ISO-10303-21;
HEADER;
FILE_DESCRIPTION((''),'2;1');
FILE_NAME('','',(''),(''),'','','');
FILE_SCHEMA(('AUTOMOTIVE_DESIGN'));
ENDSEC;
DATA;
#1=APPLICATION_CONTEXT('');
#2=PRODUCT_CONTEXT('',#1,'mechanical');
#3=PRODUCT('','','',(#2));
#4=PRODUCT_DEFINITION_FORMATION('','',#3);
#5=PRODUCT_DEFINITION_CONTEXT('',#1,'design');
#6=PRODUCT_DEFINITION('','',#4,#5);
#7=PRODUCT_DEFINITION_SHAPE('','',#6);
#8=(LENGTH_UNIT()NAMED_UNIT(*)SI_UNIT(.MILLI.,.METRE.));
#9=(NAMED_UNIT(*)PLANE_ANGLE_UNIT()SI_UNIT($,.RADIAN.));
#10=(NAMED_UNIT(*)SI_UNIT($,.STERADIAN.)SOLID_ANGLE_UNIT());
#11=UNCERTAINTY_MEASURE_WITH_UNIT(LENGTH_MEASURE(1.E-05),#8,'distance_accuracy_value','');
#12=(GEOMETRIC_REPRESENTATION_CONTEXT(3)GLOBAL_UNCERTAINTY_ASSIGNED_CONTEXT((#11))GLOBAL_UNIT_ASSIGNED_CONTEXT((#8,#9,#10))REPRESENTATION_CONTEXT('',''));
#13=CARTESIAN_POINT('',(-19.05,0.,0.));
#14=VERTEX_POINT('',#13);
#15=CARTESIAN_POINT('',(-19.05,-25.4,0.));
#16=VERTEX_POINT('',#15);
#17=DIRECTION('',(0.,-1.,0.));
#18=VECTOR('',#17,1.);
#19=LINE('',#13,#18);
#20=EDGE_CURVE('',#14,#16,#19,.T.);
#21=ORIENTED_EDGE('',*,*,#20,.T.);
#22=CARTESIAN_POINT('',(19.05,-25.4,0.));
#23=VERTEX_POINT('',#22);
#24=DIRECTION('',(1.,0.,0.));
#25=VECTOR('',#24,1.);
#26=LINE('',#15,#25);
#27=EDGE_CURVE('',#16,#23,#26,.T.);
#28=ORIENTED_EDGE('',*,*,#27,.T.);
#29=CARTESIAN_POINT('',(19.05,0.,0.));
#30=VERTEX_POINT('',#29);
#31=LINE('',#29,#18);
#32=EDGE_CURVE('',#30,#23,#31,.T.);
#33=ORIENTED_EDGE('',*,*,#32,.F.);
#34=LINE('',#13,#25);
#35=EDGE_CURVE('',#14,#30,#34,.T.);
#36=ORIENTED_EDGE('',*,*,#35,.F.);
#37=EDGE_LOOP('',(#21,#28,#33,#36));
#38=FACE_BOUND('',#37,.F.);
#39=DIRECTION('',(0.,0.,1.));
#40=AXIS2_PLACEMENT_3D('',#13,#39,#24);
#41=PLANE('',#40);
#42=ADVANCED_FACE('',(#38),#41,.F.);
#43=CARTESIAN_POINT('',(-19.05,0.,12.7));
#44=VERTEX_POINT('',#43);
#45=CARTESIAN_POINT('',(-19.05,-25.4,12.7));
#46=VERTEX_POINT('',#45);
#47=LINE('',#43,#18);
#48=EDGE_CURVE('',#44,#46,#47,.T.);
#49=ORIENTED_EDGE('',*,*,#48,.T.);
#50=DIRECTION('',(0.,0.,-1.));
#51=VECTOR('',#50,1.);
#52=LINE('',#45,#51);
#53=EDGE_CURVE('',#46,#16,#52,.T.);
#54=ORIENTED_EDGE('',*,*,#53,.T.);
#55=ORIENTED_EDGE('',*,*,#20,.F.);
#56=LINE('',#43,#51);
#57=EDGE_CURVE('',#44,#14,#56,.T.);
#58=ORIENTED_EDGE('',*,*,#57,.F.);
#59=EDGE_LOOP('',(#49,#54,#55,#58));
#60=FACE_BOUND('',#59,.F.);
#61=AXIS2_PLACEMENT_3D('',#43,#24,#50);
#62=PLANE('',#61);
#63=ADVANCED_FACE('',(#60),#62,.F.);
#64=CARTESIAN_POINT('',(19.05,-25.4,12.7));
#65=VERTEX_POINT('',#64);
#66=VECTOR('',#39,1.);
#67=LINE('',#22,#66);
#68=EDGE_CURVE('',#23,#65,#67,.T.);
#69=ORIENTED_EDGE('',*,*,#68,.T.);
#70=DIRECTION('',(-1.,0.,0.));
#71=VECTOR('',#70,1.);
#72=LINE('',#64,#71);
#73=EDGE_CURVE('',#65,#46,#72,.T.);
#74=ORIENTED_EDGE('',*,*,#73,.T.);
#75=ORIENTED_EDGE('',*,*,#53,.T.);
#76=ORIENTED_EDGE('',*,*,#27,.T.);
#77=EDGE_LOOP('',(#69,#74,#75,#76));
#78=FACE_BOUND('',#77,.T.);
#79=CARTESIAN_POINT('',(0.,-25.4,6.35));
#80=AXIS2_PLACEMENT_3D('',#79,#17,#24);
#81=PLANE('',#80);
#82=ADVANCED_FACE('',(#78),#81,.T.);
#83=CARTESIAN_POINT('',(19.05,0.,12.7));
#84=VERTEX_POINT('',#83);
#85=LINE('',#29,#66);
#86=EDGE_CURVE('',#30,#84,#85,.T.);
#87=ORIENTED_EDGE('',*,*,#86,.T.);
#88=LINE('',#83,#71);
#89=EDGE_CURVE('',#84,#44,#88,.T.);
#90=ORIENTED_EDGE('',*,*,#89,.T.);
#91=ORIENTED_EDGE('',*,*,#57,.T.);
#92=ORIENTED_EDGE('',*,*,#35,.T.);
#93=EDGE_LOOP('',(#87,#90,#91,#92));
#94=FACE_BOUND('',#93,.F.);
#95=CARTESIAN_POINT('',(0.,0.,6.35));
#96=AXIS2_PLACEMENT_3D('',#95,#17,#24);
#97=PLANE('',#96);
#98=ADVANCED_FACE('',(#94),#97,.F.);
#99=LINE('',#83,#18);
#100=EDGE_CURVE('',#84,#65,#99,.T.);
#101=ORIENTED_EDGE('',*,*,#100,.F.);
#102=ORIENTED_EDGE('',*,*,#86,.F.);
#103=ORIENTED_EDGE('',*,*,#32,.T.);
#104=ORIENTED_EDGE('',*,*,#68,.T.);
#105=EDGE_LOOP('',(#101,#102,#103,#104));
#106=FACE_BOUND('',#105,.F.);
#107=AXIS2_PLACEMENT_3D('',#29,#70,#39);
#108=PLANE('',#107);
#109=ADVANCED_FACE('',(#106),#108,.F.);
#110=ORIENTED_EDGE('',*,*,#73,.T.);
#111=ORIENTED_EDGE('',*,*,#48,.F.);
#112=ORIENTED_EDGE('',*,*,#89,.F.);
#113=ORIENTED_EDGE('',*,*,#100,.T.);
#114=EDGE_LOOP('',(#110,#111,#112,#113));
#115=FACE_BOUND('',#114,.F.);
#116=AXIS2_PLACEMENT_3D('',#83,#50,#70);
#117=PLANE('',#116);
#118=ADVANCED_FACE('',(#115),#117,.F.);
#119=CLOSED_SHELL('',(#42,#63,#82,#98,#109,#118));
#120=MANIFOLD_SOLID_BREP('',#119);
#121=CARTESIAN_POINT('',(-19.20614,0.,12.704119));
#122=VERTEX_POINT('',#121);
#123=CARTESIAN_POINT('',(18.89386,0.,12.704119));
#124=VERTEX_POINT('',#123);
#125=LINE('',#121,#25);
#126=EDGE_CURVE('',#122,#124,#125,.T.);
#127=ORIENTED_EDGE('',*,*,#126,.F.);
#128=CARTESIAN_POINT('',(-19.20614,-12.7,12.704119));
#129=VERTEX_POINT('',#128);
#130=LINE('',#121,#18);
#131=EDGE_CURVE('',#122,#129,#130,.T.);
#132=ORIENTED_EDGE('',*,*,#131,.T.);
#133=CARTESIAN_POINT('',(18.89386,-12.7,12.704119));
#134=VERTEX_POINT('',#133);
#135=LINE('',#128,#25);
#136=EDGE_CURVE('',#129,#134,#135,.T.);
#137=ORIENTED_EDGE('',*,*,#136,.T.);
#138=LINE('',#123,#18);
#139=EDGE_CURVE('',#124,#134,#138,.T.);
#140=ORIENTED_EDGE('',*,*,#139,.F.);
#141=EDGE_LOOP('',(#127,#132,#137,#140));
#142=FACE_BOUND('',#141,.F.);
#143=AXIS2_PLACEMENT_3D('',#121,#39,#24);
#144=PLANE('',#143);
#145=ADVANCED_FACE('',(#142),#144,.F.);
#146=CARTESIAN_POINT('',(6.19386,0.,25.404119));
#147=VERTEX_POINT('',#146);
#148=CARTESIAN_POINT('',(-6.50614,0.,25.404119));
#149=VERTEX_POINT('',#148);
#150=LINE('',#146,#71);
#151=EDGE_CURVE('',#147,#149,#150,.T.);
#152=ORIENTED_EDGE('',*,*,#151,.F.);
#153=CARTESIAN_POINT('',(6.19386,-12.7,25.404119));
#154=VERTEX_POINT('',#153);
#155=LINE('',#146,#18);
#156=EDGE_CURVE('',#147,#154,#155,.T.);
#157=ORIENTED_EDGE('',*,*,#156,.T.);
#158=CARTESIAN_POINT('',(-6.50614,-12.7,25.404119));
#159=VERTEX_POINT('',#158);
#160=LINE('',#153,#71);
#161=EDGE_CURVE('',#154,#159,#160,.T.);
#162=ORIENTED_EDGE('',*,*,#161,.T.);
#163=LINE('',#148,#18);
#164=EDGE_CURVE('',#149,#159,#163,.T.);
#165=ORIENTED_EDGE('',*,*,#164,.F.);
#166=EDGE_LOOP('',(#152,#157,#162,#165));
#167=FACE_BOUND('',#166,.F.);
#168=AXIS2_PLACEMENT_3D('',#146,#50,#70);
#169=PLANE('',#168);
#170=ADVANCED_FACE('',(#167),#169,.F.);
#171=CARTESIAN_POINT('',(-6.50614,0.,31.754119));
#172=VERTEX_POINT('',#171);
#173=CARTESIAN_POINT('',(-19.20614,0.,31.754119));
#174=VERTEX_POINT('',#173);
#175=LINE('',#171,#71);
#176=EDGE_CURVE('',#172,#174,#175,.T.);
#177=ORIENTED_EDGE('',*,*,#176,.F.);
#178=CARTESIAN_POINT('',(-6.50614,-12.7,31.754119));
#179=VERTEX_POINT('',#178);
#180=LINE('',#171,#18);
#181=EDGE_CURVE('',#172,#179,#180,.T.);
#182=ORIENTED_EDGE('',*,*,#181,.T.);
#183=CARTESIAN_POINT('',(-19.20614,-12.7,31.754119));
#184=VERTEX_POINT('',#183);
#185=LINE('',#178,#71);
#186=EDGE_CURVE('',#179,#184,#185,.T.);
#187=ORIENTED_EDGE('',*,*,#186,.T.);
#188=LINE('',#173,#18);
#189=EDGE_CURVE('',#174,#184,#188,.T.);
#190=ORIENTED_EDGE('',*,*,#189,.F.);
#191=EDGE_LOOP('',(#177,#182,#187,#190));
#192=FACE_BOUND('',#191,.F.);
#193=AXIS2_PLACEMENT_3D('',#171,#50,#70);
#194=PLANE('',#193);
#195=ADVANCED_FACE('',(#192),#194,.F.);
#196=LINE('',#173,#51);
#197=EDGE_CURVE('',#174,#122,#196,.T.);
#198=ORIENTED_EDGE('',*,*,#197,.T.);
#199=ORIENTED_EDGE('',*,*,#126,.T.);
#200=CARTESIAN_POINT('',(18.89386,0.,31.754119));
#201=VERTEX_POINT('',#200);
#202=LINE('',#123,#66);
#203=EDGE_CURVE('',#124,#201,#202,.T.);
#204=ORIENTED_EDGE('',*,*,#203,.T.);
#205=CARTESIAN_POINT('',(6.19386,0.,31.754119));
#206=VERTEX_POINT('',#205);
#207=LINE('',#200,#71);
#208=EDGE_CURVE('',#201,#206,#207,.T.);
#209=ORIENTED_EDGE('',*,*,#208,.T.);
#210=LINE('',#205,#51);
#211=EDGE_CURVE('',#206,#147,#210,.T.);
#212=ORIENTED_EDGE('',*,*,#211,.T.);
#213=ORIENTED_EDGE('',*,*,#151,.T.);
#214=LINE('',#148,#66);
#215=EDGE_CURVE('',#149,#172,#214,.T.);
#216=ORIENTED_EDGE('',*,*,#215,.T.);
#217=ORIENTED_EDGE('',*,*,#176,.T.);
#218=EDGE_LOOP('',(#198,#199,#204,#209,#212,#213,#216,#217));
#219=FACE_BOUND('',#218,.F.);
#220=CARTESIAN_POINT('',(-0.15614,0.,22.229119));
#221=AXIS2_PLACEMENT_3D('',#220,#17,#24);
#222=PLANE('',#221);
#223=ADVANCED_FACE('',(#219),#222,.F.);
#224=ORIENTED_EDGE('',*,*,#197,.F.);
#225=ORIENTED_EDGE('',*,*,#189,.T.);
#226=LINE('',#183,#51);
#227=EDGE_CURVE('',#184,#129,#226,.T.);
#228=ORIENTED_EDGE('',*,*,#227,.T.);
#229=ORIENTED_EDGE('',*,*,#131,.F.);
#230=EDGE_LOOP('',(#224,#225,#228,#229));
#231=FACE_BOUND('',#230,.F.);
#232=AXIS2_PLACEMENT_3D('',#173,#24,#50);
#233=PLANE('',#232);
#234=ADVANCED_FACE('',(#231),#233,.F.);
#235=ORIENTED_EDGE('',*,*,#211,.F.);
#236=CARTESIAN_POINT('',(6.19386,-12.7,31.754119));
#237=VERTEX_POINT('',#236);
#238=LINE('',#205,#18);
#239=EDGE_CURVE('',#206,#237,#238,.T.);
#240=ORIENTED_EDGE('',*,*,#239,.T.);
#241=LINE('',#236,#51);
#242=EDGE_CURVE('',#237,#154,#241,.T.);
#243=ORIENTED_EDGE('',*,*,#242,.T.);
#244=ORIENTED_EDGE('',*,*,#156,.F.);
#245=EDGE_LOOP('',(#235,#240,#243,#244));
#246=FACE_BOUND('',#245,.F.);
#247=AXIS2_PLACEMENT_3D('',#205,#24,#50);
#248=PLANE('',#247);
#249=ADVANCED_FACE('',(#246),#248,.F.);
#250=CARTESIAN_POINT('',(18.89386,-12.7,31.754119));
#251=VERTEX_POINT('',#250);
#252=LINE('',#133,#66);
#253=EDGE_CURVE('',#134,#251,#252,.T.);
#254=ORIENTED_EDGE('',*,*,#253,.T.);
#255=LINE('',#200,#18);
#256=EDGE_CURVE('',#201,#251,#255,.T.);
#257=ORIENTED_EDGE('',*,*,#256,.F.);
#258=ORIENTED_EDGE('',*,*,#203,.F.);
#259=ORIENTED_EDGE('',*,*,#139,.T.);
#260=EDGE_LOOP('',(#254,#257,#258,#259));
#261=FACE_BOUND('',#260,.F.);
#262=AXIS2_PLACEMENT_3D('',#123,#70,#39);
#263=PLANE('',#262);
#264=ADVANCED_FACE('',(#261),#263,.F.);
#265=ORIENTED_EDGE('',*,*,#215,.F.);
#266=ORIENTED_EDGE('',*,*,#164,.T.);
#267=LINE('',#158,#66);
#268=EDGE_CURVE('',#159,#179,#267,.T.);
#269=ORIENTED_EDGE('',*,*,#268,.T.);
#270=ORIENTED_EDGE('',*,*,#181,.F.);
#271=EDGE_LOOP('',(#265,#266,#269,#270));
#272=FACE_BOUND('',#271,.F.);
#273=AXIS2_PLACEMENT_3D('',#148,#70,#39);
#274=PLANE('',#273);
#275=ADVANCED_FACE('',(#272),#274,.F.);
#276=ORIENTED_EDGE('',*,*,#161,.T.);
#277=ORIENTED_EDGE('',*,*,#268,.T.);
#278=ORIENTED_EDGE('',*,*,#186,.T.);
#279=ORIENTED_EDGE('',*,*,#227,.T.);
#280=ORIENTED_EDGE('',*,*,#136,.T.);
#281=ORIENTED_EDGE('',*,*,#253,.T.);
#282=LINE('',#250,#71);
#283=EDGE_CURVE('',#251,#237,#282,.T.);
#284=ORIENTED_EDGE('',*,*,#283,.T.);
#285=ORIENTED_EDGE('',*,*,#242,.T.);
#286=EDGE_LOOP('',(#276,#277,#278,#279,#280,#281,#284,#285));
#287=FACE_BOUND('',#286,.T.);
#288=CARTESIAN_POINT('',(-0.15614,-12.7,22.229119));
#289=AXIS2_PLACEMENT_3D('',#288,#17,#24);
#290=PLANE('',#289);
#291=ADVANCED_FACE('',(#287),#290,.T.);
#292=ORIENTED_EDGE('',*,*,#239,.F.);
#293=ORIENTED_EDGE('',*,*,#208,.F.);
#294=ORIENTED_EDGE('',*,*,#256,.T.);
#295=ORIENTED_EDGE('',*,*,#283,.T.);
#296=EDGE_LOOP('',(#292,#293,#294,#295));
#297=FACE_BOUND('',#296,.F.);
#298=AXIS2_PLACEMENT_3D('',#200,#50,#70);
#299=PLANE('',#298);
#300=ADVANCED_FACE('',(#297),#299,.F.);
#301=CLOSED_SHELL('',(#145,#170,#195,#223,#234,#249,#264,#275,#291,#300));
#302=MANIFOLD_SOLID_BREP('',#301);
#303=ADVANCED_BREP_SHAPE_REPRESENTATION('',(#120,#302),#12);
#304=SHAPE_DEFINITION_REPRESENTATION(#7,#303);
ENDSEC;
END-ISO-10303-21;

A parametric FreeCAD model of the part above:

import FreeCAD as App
import Part
import Sketcher

V = App.Vector
Q = App.Units.Quantity

doc = App.newDocument("Part")
body = doc.addObject("PartDesign::Body", "Body")

sketch1 = body.newObject("Sketcher::SketchObject", "Sketch")
sketch1.AttachmentSupport = (doc.getObject("XZ_Plane"), [""])
sketch1.MapMode = "FlatFace"
sketch1.addGeometry([
    Part.LineSegment(V(-19, 0, 0), V(19, 0, 0)),
    Part.LineSegment(V(19, 0, 0), V(19, 13, 0)),
    Part.LineSegment(V(19, 13, 0), V(-19, 13, 0)),
    Part.LineSegment(V(-19, 13, 0), V(-19, 0, 0)),
], False)
sketch1.addConstraint([
    Sketcher.Constraint("Coincident", 0, 2, 1, 1),
    Sketcher.Constraint("Coincident", 1, 2, 2, 1),
    Sketcher.Constraint("Coincident", 2, 2, 3, 1),
    Sketcher.Constraint("Coincident", 3, 2, 0, 1),
    Sketcher.Constraint("Horizontal", 0),
    Sketcher.Constraint("Vertical", 1),
    Sketcher.Constraint("Horizontal", 2),
    Sketcher.Constraint("Vertical", 3),
    Sketcher.Constraint("Symmetric", 0, 2, 3, 2, -1, 1),
    Sketcher.Constraint("DistanceX", 0, 1, 0, 2, Q("1.5 in")),
    Sketcher.Constraint("DistanceY", 1, 1, 1, 2, Q("0.5 in")),
])
pad1 = body.newObject("PartDesign::Pad", "Pad")
pad1.Profile = sketch1
pad1.Length = Q("1 in")
body2 = doc.addObject("PartDesign::Body", "Body001")

sketch2 = body2.newObject("Sketcher::SketchObject", "Sketch001")
sketch2.AttachmentSupport = (doc.getObject("XZ_Plane001"), [""])
sketch2.MapMode = "FlatFace"
sketch2.addGeometry([
    Part.LineSegment(V(-19, 32, 0), V(-19, 13, 0)),
    Part.LineSegment(V(-19, 13, 0), V(19, 13, 0)),
    Part.LineSegment(V(19, 13, 0), V(19, 32, 0)),
    Part.LineSegment(V(19, 32, 0), V(6, 32, 0)),
    Part.LineSegment(V(6, 32, 0), V(6, 25, 0)),
    Part.LineSegment(V(6, 25, 0), V(-7, 25, 0)),
    Part.LineSegment(V(-7, 25, 0), V(-7, 32, 0)),
    Part.LineSegment(V(-7, 32, 0), V(-19, 32, 0)),
], False)
sketch2.addConstraint([
    Sketcher.Constraint("Coincident", 0, 2, 1, 1),
    Sketcher.Constraint("Coincident", 1, 2, 2, 1),
    Sketcher.Constraint("Coincident", 2, 2, 3, 1),
    Sketcher.Constraint("Coincident", 3, 2, 4, 1),
    Sketcher.Constraint("Coincident", 4, 2, 5, 1),
    Sketcher.Constraint("Coincident", 5, 2, 6, 1),
    Sketcher.Constraint("Coincident", 6, 2, 7, 1),
    Sketcher.Constraint("Coincident", 7, 2, 0, 1),
    Sketcher.Constraint("Vertical", 0),
    Sketcher.Constraint("Horizontal", 1),
    Sketcher.Constraint("Vertical", 2),
    Sketcher.Constraint("Horizontal", 3),
    Sketcher.Constraint("Vertical", 4),
    Sketcher.Constraint("Horizontal", 5),
    Sketcher.Constraint("Vertical", 6),
    Sketcher.Constraint("Horizontal", 7),
    Sketcher.Constraint("Horizontal", 3, 2, 6, 2),
    Sketcher.Constraint("Equal", 3, 5),
    Sketcher.Constraint("Equal", 5, 7),
    Sketcher.Constraint("DistanceX", 1, 1, 1, 2, Q("1.5 in")),
    Sketcher.Constraint("DistanceY", 0, 2, 0, 1, Q("0.75 in")),
    Sketcher.Constraint("DistanceY", 4, 2, 4, 1, Q("0.25 in")),
    Sketcher.Constraint("DistanceX", 0, 2, -1, 1, Q("19.20614 mm")),
    Sketcher.Constraint("DistanceY", -1, 1, 0, 2, Q("12.704119 mm")),
])
pad2 = body2.newObject("PartDesign::Pad", "Pad001")
pad2.Profile = sketch2
pad2.Length = Q("0.5 in")

doc.recompute()
